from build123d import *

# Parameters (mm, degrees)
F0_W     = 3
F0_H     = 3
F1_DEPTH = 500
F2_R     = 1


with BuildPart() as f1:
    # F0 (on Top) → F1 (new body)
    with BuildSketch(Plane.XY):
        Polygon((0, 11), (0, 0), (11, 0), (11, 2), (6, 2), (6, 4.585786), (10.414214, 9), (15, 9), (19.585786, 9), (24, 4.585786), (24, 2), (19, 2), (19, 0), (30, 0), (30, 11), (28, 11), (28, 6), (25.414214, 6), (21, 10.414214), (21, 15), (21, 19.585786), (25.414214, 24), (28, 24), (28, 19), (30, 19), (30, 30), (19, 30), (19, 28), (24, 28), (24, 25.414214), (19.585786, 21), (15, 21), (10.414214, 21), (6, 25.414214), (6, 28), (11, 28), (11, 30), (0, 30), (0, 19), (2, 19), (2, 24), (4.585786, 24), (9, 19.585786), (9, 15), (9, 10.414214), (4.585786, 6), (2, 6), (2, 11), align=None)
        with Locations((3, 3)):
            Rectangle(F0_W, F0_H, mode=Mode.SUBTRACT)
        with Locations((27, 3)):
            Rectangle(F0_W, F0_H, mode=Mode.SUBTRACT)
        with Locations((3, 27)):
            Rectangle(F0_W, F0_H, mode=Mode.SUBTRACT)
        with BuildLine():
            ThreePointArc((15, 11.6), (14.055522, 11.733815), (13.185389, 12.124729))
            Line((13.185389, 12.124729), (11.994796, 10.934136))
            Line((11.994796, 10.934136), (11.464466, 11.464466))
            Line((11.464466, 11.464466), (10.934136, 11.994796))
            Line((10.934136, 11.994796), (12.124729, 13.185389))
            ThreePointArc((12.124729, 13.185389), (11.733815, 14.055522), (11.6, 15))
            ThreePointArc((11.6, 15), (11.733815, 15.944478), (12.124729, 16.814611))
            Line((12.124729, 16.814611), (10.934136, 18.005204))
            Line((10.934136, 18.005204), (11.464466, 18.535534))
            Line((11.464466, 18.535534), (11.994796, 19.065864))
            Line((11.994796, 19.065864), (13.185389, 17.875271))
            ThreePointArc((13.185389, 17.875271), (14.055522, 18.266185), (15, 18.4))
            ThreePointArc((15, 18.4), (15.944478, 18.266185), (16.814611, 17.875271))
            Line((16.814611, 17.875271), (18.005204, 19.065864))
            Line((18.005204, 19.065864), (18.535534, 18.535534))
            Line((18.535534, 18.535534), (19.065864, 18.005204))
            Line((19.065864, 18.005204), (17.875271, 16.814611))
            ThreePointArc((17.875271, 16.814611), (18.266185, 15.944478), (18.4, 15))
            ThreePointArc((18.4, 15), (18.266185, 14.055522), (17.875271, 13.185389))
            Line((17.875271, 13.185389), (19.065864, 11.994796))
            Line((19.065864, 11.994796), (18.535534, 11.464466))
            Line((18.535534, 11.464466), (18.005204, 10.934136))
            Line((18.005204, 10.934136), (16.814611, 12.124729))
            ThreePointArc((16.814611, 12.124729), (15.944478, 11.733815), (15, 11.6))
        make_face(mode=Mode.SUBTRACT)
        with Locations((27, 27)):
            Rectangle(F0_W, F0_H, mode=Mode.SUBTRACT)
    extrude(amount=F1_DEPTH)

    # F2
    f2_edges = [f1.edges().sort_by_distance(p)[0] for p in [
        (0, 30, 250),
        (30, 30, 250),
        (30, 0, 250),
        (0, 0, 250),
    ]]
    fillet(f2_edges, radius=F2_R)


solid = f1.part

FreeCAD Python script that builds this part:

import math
import FreeCAD as App
import Part
import Sketcher


def edges_at(feature, points):
    """Names of the edges that pass closest to the given points."""
    edges = feature.Shape.Edges
    near = lambda p: min(range(len(edges)), key=lambda i: edges[i].distToShape(Part.Vertex(*p))[0])
    return sorted({f"Edge{near(p) + 1}" for p in points})


def add_polygon(sketch, points):
    """Adds a closed chain of lines whose ends are joined by coincident constraints."""
    first, n = sketch.GeometryCount, len(points)
    for a, b in zip(points, points[1:] + points[:1]):
        sketch.addGeometry(Part.LineSegment(App.Vector(*a, 0), App.Vector(*b, 0)), False)
    for i in range(n):
        sketch.addConstraint(Sketcher.Constraint("Coincident", first + i, 2, first + (i + 1) % n, 1))

doc = App.newDocument("Part")
params = doc.addObject("Spreadsheet::Sheet", "Params")
for row, (alias, value) in enumerate([
    ("sketch1_width", "11 mm"),
    ("sketch1_width2", "5 mm"),
    ("sketch1_width3", "2 mm"),
    ("sketch1_width4", "3 mm"),
    ("sketch1_length", "1.5 mm"),
    ("pad1_length", "500 mm"),
    ("fillet_radius", "1 mm"),
], start=1):
    params.set(f"A{row}", alias)
    params.set(f"B{row}", "=" + value)
    params.setAlias(f"B{row}", alias)

body = doc.addObject("PartDesign::Body", "Body")

# Sketch on XY plane
sketch1 = doc.addObject("Sketcher::SketchObject", "Sketch")
body.addObject(sketch1)
sketch1.AttachmentSupport = (doc.XY_Plane, [""])
sketch1.MapMode = "FlatFace"
add_polygon(sketch1, [(0, 11), (0, 0), (11, 0), (11, 2), (6, 2), (6, 4.6), (10.4, 9), (19.6, 9), (24, 4.6), (24, 2), (19, 2), (19, 0), (30, 0), (30, 11), (28, 11), (28, 6), (25.4, 6), (21, 10.4), (21, 19.6), (25.4, 24), (28, 24), (28, 19), (30, 19), (30, 30), (19, 30), (19, 28), (24, 28), (24, 25.4), (19.6, 21), (10.4, 21), (6, 25.4), (6, 28), (11, 28), (11, 30), (0, 30), (0, 19), (2, 19), (2, 24), (4.6, 24), (9, 19.6), (9, 10.4), (4.6, 6), (2, 6), (2, 11)])  # lines 0-43
add_polygon(sketch1, [(4.5, 1.5), (1.5, 1.5), (1.5, 4.5), (4.5, 4.5)])  # lines 44-47
add_polygon(sketch1, [(28.5, 1.5), (25.5, 1.5), (25.5, 4.5), (28.5, 4.5)])  # lines 48-51
add_polygon(sketch1, [(4.5, 25.5), (1.5, 25.5), (1.5, 28.5), (4.5, 28.5)])  # lines 52-55
sketch1.addGeometry(Part.ArcOfCircle(Part.Circle(App.Vector(15, 15, 0), App.Vector(0, 0, 1), 3.4), math.radians(-90), math.radians(-58)), False)  # 56
sketch1.addGeometry(Part.ArcOfCircle(Part.Circle(App.Vector(15, 15, 0), App.Vector(0, 0, 1), 3.4), math.radians(-122), math.radians(-90)), False)  # 57
sketch1.addGeometry(Part.LineSegment(App.Vector(13.2, 12.1, 0), App.Vector(12, 10.9, 0)), False)  # 58
sketch1.addGeometry(Part.LineSegment(App.Vector(12, 10.9, 0), App.Vector(10.9, 12, 0)), False)  # 59
sketch1.addGeometry(Part.LineSegment(App.Vector(10.9, 12, 0), App.Vector(12.1, 13.2, 0)), False)  # 60
sketch1.addGeometry(Part.ArcOfCircle(Part.Circle(App.Vector(15, 15, 0), App.Vector(0, 0, 1), 3.4), math.radians(180), math.radians(212)), False)  # 61
sketch1.addGeometry(Part.ArcOfCircle(Part.Circle(App.Vector(15, 15, 0), App.Vector(0, 0, 1), 3.4), math.radians(148), math.radians(180)), False)  # 62
sketch1.addGeometry(Part.LineSegment(App.Vector(12.1, 16.8, 0), App.Vector(10.9, 18, 0)), False)  # 63
sketch1.addGeometry(Part.LineSegment(App.Vector(10.9, 18, 0), App.Vector(12, 19.1, 0)), False)  # 64
sketch1.addGeometry(Part.LineSegment(App.Vector(12, 19.1, 0), App.Vector(13.2, 17.9, 0)), False)  # 65
sketch1.addGeometry(Part.ArcOfCircle(Part.Circle(App.Vector(15, 15, 0), App.Vector(0, 0, 1), 3.4), math.radians(90), math.radians(122)), False)  # 66
sketch1.addGeometry(Part.ArcOfCircle(Part.Circle(App.Vector(15, 15, 0), App.Vector(0, 0, 1), 3.4), math.radians(58), math.radians(90)), False)  # 67
sketch1.addGeometry(Part.LineSegment(App.Vector(16.8, 17.9, 0), App.Vector(18, 19.1, 0)), False)  # 68
sketch1.addGeometry(Part.LineSegment(App.Vector(18, 19.1, 0), App.Vector(19.1, 18, 0)), False)  # 69
sketch1.addGeometry(Part.LineSegment(App.Vector(19.1, 18, 0), App.Vector(17.9, 16.8, 0)), False)  # 70
sketch1.addGeometry(Part.ArcOfCircle(Part.Circle(App.Vector(15, 15, 0), App.Vector(0, 0, 1), 3.4), math.radians(0), math.radians(32)), False)  # 71
sketch1.addGeometry(Part.ArcOfCircle(Part.Circle(App.Vector(15, 15, 0), App.Vector(0, 0, 1), 3.4), math.radians(-32), math.radians(0)), False)  # 72
sketch1.addGeometry(Part.LineSegment(App.Vector(17.9, 13.2, 0), App.Vector(19.1, 12, 0)), False)  # 73
sketch1.addGeometry(Part.LineSegment(App.Vector(19.1, 12, 0), App.Vector(18, 10.9, 0)), False)  # 74
sketch1.addGeometry(Part.LineSegment(App.Vector(18, 10.9, 0), App.Vector(16.8, 12.1, 0)), False)  # 75
add_polygon(sketch1, [(28.5, 25.5), (25.5, 25.5), (25.5, 28.5), (28.5, 28.5)])  # lines 76-79
sketch1.addConstraint([
    Sketcher.Constraint("Coincident", 56, 1, 57, 2),
    Sketcher.Constraint("Coincident", 57, 1, 58, 1),
    Sketcher.Constraint("Coincident", 58, 2, 59, 1),
    Sketcher.Constraint("Coincident", 59, 2, 60, 1),
    Sketcher.Constraint("Coincident", 60, 2, 61, 2),
    Sketcher.Constraint("Coincident", 61, 1, 62, 2),
    Sketcher.Constraint("Coincident", 62, 1, 63, 1),
    Sketcher.Constraint("Coincident", 63, 2, 64, 1),
    Sketcher.Constraint("Coincident", 64, 2, 65, 1),
    Sketcher.Constraint("Coincident", 65, 2, 66, 2),
    Sketcher.Constraint("Coincident", 66, 1, 67, 2),
    Sketcher.Constraint("Coincident", 67, 1, 68, 1),
    Sketcher.Constraint("Coincident", 68, 2, 69, 1),
    Sketcher.Constraint("Coincident", 69, 2, 70, 1),
    Sketcher.Constraint("Coincident", 70, 2, 71, 2),
    Sketcher.Constraint("Coincident", 71, 1, 72, 2),
    Sketcher.Constraint("Coincident", 72, 1, 73, 1),
    Sketcher.Constraint("Coincident", 73, 2, 74, 1),
    Sketcher.Constraint("Coincident", 74, 2, 75, 1),
    Sketcher.Constraint("Coincident", 75, 2, 56, 2),
    Sketcher.Constraint("Vertical", 0),
    Sketcher.Constraint("Horizontal", 1),
    Sketcher.Constraint("Vertical", 2),
    Sketcher.Constraint("Horizontal", 3),
    Sketcher.Constraint("Vertical", 4),
    Sketcher.Constraint("Horizontal", 6),
    Sketcher.Constraint("Vertical", 8),
    Sketcher.Constraint("Horizontal", 9),
    Sketcher.Constraint("Vertical", 10),
    Sketcher.Constraint("Horizontal", 11),
    Sketcher.Constraint("Vertical", 12),
    Sketcher.Constraint("Horizontal", 13),
    Sketcher.Constraint("Vertical", 14),
    Sketcher.Constraint("Horizontal", 15),
    Sketcher.Constraint("Vertical", 17),
    Sketcher.Constraint("Horizontal", 19),
    Sketcher.Constraint("Vertical", 20),
    Sketcher.Constraint("Horizontal", 21),
    Sketcher.Constraint("Vertical", 22),
    Sketcher.Constraint("Horizontal", 23),
    Sketcher.Constraint("Vertical", 24),
    Sketcher.Constraint("Horizontal", 25),
    Sketcher.Constraint("Vertical", 26),
    Sketcher.Constraint("Horizontal", 28),
    Sketcher.Constraint("Vertical", 30),
    Sketcher.Constraint("Horizontal", 31),
    Sketcher.Constraint("Vertical", 32),
    Sketcher.Constraint("Horizontal", 33),
    Sketcher.Constraint("Vertical", 34),
    Sketcher.Constraint("Horizontal", 35),
    Sketcher.Constraint("Vertical", 36),
    Sketcher.Constraint("Horizontal", 37),
    Sketcher.Constraint("Vertical", 39),
    Sketcher.Constraint("Horizontal", 41),
    Sketcher.Constraint("Vertical", 42),
    Sketcher.Constraint("Horizontal", 43),
    Sketcher.Constraint("Horizontal", 44),
    Sketcher.Constraint("Vertical", 45),
    Sketcher.Constraint("Horizontal", 46),
    Sketcher.Constraint("Vertical", 47),
    Sketcher.Constraint("Horizontal", 48),
    Sketcher.Constraint("Vertical", 49),
    Sketcher.Constraint("Horizontal", 50),
    Sketcher.Constraint("Vertical", 51),
    Sketcher.Constraint("Horizontal", 52),
    Sketcher.Constraint("Vertical", 53),
    Sketcher.Constraint("Horizontal", 54),
    Sketcher.Constraint("Vertical", 55),
    Sketcher.Constraint("Horizontal", 76),
    Sketcher.Constraint("Vertical", 77),
    Sketcher.Constraint("Horizontal", 78),
    Sketcher.Constraint("Vertical", 79),
    Sketcher.Constraint("Coincident", 0, 2, -1, 1),
    Sketcher.Constraint("Coincident", 57, 3, 56, 3),
    Sketcher.Constraint("Coincident", 62, 3, 61, 3),
    Sketcher.Constraint("Coincident", 67, 3, 66, 3),
    Sketcher.Constraint("Coincident", 72, 3, 71, 3),
    Sketcher.Constraint("Equal", 57, 61),
    Sketcher.Constraint("Equal", 62, 66),
    Sketcher.Constraint("Equal", 67, 71),
    Sketcher.Constraint("PointOnObject", 10, 2, -1),
    Sketcher.Constraint("PointOnObject", 33, 2, -2),
    Sketcher.Constraint("Perpendicular", 5, 7),
    Sketcher.Constraint("Parallel", 7, 16),
    Sketcher.Constraint("Perpendicular", 16, 18),
    Sketcher.Constraint("Parallel", 18, 27),
    Sketcher.Constraint("Perpendicular", 27, 29),
    Sketcher.Constraint("Parallel", 29, 38),
    Sketcher.Constraint("Perpendicular", 38, 40),
    Sketcher.Constraint("Parallel", 40, 58),
    Sketcher.Constraint("Perpendicular", 58, 59),
    Sketcher.Constraint("Perpendicular", 59, 60),
    Sketcher.Constraint("Perpendicular", 60, 63),
    Sketcher.Constraint("Perpendicular", 63, 64),
    Sketcher.Constraint("Perpendicular", 64, 65),
    Sketcher.Constraint("Perpendicular", 65, 68),
    Sketcher.Constraint("Perpendicular", 68, 69),
    Sketcher.Constraint("Perpendicular", 69, 70),
    Sketcher.Constraint("Perpendicular", 70, 73),
    Sketcher.Constraint("Perpendicular", 73, 74),
    Sketcher.Constraint("Perpendicular", 74, 75),
    Sketcher.Constraint("Horizontal", 62, 3, 71, 3),
    Sketcher.Constraint("Horizontal", 4, 2, 7, 2),
    Sketcher.Constraint("Horizontal", 3, 2, 8, 2),
    Sketcher.Constraint("Horizontal", 26, 2, 29, 2),
    Sketcher.Constraint("Horizontal", 25, 2, 30, 2),
    Sketcher.Constraint("Horizontal", 23, 2, 32, 2),
    Sketcher.Constraint("Horizontal", 21, 2, 34, 2),
    Sketcher.Constraint("Horizontal", 19, 2, 36, 2),
    Sketcher.Constraint("Horizontal", 17, 2, 38, 2),
    Sketcher.Constraint("Horizontal", 16, 2, 39, 2),
    Sketcher.Constraint("Horizontal", 15, 2, 40, 2),
    Sketcher.Constraint("Horizontal", 13, 2, 42, 2),
    Sketcher.Constraint("Horizontal", 47, 2, 48, 2),
    Sketcher.Constraint("Horizontal", 46, 2, 49, 2),
    Sketcher.Constraint("Horizontal", 65, 2, 67, 1),
    Sketcher.Constraint("Horizontal", 64, 2, 68, 2),
    Sketcher.Constraint("Horizontal", 63, 2, 69, 2),
    Sketcher.Constraint("Horizontal", 62, 1, 70, 2),
    Sketcher.Constraint("Horizontal", 61, 1, 71, 1),
    Sketcher.Constraint("Horizontal", 60, 2, 72, 1),
    Sketcher.Constraint("Horizontal", 59, 2, 73, 2),
    Sketcher.Constraint("Horizontal", 58, 2, 74, 2),
    Sketcher.Constraint("Horizontal", 57, 1, 75, 2),
    Sketcher.Constraint("Horizontal", 55, 2, 76, 2),
    Sketcher.Constraint("Horizontal", 54, 2, 77, 2),
    Sketcher.Constraint("Vertical", 57, 3, 66, 3),
    Sketcher.Constraint("Vertical", 15, 2, 18, 2),
    Sketcher.Constraint("Vertical", 14, 2, 19, 2),
    Sketcher.Constraint("Vertical", 12, 2, 21, 2),
    Sketcher.Constraint("Vertical", 10, 2, 23, 2),
    Sketcher.Constraint("Vertical", 8, 2, 25, 2),
    Sketcher.Constraint("Vertical", 6, 2, 27, 2),
    Sketcher.Constraint("Vertical", 5, 2, 28, 2),
    Sketcher.Constraint("Vertical", 2, 2, 31, 2),
    Sketcher.Constraint("Vertical", 36, 2, 41, 2),
    Sketcher.Constraint("Vertical", 45, 2, 52, 2),
    Sketcher.Constraint("Vertical", 47, 2, 54, 2),
    Sketcher.Constraint("Vertical", 60, 2, 62, 1),
    Sketcher.Constraint("Vertical", 59, 2, 63, 2),
    Sketcher.Constraint("Vertical", 58, 2, 64, 2),
    Sketcher.Constraint("Vertical", 57, 1, 65, 2),
    Sketcher.Constraint("Vertical", 56, 1, 66, 1),
    Sketcher.Constraint("Vertical", 49, 2, 76, 2),
    Sketcher.Constraint("Vertical", 51, 2, 78, 2),
    Sketcher.Constraint("Equal", 3, 9),
    Sketcher.Constraint("Equal", 1, 11),
    Sketcher.Constraint("Equal", 21, 35),
    Sketcher.Constraint("Equal", 19, 37),
    Sketcher.Constraint("Equal", 46, 48),
    Sketcher.Constraint("Equal", 33, 0),
    Sketcher.Constraint("Equal", 43, 2),
    Sketcher.Constraint("Equal", 41, 4),
    Sketcher.Constraint("Equal", 31, 14),
    Sketcher.Constraint("Equal", 28, 17),
    Sketcher.Constraint("Equal", 14, 20),
    Sketcher.Constraint("Equal", 12, 22),
    Sketcher.Constraint("Equal", 10, 24),
    Sketcher.Constraint("Equal", 8, 26),
    Sketcher.Constraint("Equal", 78, 45),
    Sketcher.Constraint("Equal", 51, 53),
    Sketcher.Constraint("Equal", 7, 16),
    Sketcher.Constraint("Equal", 58, 60),
    Sketcher.Constraint("DistanceX", 1, 1, 1, 2, 11.0),
    Sketcher.Constraint("DistanceX", 3, 2, 3, 1, 5.0),
    Sketcher.Constraint("DistanceX", 13, 2, 13, 1, 2.0),
    Sketcher.Constraint("DistanceX", 44, 2, 44, 1, 3.0),
    Sketcher.Constraint("DistanceY", -1, 1, 5, 2, 9.0),
    Sketcher.Constraint("DistanceX", -1, 1, 7, 2, 24.0),
    Sketcher.Constraint("DistanceX", -1, 1, 56, 1, 15.0),
    Sketcher.Constraint("DistanceY", -1, 1, 61, 1, 15.0),
    Sketcher.Constraint("Distance", 59, 1.5),
    Sketcher.Constraint("DistanceX", -1, 1, 44, 2, 1.5),
    Sketcher.Constraint("DistanceY", -1, 1, 44, 2, 1.5),
    Sketcher.Constraint("DistanceX", -1, 1, 48, 2, 25.5),
    Sketcher.Constraint("DistanceY", -1, 1, 52, 2, 25.5),
    Sketcher.Constraint("DistanceY", -1, 1, 56, 1, 11.6),
    Sketcher.Constraint("DistanceX", -1, 1, 61, 1, 11.6),
    Sketcher.Constraint("DistanceY", -1, 1, 66, 1, 18.4),
    Sketcher.Constraint("DistanceX", -1, 1, 71, 1, 18.4),
    Sketcher.Constraint("Radius", 56, 3.399982),
    Sketcher.Constraint("Distance", 5, 6.242641),
    Sketcher.Constraint("Distance", 58, 1.683753),
])
sketch1.setExpression("Constraints[223]", "Params.sketch1_width")
sketch1.setExpression("Constraints[224]", "Params.sketch1_width2")
sketch1.setExpression("Constraints[225]", "Params.sketch1_width3")
sketch1.setExpression("Constraints[226]", "Params.sketch1_width4")
sketch1.setExpression("Constraints[231]", "Params.sketch1_length")
pad1 = doc.addObject("PartDesign::Pad", "Pad")
body.addObject(pad1)
pad1.Profile = sketch1
pad1.setExpression("Length", "Params.pad1_length")
doc.recompute()

fillet = doc.addObject("PartDesign::Fillet", "Fillet")
body.addObject(fillet)
fillet.Base = (pad1, edges_at(pad1, [
    (0, 30, 250),
    (30, 30, 250),
    (30, 0, 250),
    (0, 0, 250),
]))
fillet.setExpression("Radius", "Params.fillet_radius")

doc.recompute()
